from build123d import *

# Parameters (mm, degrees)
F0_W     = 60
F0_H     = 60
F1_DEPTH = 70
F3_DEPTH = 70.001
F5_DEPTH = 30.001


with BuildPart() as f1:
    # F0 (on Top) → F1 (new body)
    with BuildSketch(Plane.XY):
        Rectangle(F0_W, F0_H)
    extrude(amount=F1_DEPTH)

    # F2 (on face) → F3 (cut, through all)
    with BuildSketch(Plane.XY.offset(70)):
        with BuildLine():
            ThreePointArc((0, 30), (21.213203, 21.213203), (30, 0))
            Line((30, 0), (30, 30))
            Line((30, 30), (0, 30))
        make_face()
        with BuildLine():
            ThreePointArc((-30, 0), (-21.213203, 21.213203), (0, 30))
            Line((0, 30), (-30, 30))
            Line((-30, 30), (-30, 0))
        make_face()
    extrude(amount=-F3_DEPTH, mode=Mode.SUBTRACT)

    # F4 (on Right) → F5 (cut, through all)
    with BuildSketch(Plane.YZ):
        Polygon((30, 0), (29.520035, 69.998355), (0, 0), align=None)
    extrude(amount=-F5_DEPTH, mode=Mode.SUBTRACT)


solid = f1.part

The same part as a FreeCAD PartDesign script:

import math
import FreeCAD as App
import Part
import Sketcher
from FreeCAD import Vector

doc = App.newDocument("Part")
body = doc.addObject("PartDesign::Body", "Body")

sketch1 = doc.addObject("Sketcher::SketchObject", "Sketch")
body.addObject(sketch1)
sketch1.AttachmentSupport = (doc.XY_Plane, [""])
sketch1.MapMode = "FlatFace"
sketch1.addGeometry(Part.LineSegment(Vector(-30, 30, 0), Vector(-30, -30, 0)), False)
sketch1.addGeometry(Part.LineSegment(Vector(-30, -30, 0), Vector(30, -30, 0)), False)
sketch1.addGeometry(Part.LineSegment(Vector(30, -30, 0), Vector(30, 30, 0)), False)
sketch1.addGeometry(Part.LineSegment(Vector(30, 30, 0), Vector(-30, 30, 0)), False)
sketch1.addConstraint(Sketcher.Constraint("Coincident", 0, 2, 1, 1))
sketch1.addConstraint(Sketcher.Constraint("Coincident", 1, 2, 2, 1))
sketch1.addConstraint(Sketcher.Constraint("Coincident", 2, 2, 3, 1))
sketch1.addConstraint(Sketcher.Constraint("Coincident", 3, 2, 0, 1))
sketch1.addConstraint(Sketcher.Constraint("Vertical", 0))
sketch1.addConstraint(Sketcher.Constraint("Horizontal", 1))
sketch1.addConstraint(Sketcher.Constraint("Vertical", 2))
sketch1.addConstraint(Sketcher.Constraint("Horizontal", 3))
sketch1.addConstraint(Sketcher.Constraint("Symmetric", 0, 2, 2, 2, -1, 1))
sketch1.addConstraint(Sketcher.Constraint("Equal", 3, 0))
sketch1.addConstraint(Sketcher.Constraint("DistanceX", 1, 1, 1, 2, 60.0))
pad1 = doc.addObject("PartDesign::Pad", "Pad")
body.addObject(pad1)
pad1.Profile = sketch1
pad1.Length = 70

sketch2 = doc.addObject("Sketcher::SketchObject", "Sketch001")
body.addObject(sketch2)
sketch2.AttachmentSupport = (doc.XY_Plane, [""])
sketch2.MapMode = "FlatFace"
sketch2.AttachmentOffset = App.Placement(Vector(0, 0, 70), App.Rotation())
sketch2.addGeometry(Part.ArcOfCircle(Part.Circle(Vector(0, 0, 0), Vector(0, 0, 1), 30), math.radians(0), math.radians(90)), False)
sketch2.addGeometry(Part.LineSegment(Vector(30, 0, 0), Vector(30, 30, 0)), False)
sketch2.addGeometry(Part.LineSegment(Vector(30, 30, 0), Vector(0, 30, 0)), False)
sketch2.addGeometry(Part.ArcOfCircle(Part.Circle(Vector(0, 0, 0), Vector(0, 0, 1), 30), math.radians(90), math.radians(180)), False)
sketch2.addGeometry(Part.LineSegment(Vector(0, 30, 0), Vector(-30, 30, 0)), False)
sketch2.addGeometry(Part.LineSegment(Vector(-30, 30, 0), Vector(-30, 0, 0)), False)
sketch2.addConstraint(Sketcher.Constraint("Tangent", 0, 1, 1, 1))
sketch2.addConstraint(Sketcher.Constraint("Coincident", 1, 2, 2, 1))
sketch2.addConstraint(Sketcher.Constraint("Tangent", 2, 2, 0, 2))
sketch2.addConstraint(Sketcher.Constraint("Tangent", 3, 1, 4, 1))
sketch2.addConstraint(Sketcher.Constraint("Coincident", 4, 2, 5, 1))
sketch2.addConstraint(Sketcher.Constraint("Tangent", 5, 2, 3, 2))
sketch2.addConstraint(Sketcher.Constraint("Vertical", 1))
sketch2.addConstraint(Sketcher.Constraint("Horizontal", 2))
sketch2.addConstraint(Sketcher.Constraint("Horizontal", 4))
sketch2.addConstraint(Sketcher.Constraint("Vertical", 5))
sketch2.addConstraint(Sketcher.Constraint("Coincident", 0, 3, -1, 1))
sketch2.addConstraint(Sketcher.Constraint("Coincident", 3, 3, -1, 1))
sketch2.addConstraint(Sketcher.Constraint("Equal", 0, 3))
sketch2.addConstraint(Sketcher.Constraint("Radius", 0, 30.000001))
pocket1 = doc.addObject("PartDesign::Pocket", "Pocket")
body.addObject(pocket1)
pocket1.Profile = sketch2
pocket1.Type = "ThroughAll"

sketch3 = doc.addObject("Sketcher::SketchObject", "Sketch002")
body.addObject(sketch3)
sketch3.AttachmentSupport = (doc.YZ_Plane, [""])
sketch3.MapMode = "FlatFace"
sketch3.addGeometry(Part.LineSegment(Vector(30, 0, 0), Vector(30, 70, 0)), False)
sketch3.addGeometry(Part.LineSegment(Vector(30, 70, 0), Vector(0, 0, 0)), False)
sketch3.addGeometry(Part.LineSegment(Vector(0, 0, 0), Vector(30, 0, 0)), False)
sketch3.addConstraint(Sketcher.Constraint("Coincident", 0, 2, 1, 1))
sketch3.addConstraint(Sketcher.Constraint("Coincident", 1, 2, 2, 1))
sketch3.addConstraint(Sketcher.Constraint("Coincident", 2, 2, 0, 1))
sketch3.addConstraint(Sketcher.Constraint("Horizontal", 2))
sketch3.addConstraint(Sketcher.Constraint("Coincident", 1, 2, -1, 1))
sketch3.addConstraint(Sketcher.Constraint("DistanceX", 2, 1, 2, 2, 30.0))
sketch3.addConstraint(Sketcher.Constraint("Distance", 0, 70.0))
sketch3.addConstraint(Sketcher.Constraint("Distance", 1, 75.968429))
pocket2 = doc.addObject("PartDesign::Pocket", "Pocket001")
body.addObject(pocket2)
pocket2.Profile = sketch3
pocket2.Type = "ThroughAll"

doc.recompute()
